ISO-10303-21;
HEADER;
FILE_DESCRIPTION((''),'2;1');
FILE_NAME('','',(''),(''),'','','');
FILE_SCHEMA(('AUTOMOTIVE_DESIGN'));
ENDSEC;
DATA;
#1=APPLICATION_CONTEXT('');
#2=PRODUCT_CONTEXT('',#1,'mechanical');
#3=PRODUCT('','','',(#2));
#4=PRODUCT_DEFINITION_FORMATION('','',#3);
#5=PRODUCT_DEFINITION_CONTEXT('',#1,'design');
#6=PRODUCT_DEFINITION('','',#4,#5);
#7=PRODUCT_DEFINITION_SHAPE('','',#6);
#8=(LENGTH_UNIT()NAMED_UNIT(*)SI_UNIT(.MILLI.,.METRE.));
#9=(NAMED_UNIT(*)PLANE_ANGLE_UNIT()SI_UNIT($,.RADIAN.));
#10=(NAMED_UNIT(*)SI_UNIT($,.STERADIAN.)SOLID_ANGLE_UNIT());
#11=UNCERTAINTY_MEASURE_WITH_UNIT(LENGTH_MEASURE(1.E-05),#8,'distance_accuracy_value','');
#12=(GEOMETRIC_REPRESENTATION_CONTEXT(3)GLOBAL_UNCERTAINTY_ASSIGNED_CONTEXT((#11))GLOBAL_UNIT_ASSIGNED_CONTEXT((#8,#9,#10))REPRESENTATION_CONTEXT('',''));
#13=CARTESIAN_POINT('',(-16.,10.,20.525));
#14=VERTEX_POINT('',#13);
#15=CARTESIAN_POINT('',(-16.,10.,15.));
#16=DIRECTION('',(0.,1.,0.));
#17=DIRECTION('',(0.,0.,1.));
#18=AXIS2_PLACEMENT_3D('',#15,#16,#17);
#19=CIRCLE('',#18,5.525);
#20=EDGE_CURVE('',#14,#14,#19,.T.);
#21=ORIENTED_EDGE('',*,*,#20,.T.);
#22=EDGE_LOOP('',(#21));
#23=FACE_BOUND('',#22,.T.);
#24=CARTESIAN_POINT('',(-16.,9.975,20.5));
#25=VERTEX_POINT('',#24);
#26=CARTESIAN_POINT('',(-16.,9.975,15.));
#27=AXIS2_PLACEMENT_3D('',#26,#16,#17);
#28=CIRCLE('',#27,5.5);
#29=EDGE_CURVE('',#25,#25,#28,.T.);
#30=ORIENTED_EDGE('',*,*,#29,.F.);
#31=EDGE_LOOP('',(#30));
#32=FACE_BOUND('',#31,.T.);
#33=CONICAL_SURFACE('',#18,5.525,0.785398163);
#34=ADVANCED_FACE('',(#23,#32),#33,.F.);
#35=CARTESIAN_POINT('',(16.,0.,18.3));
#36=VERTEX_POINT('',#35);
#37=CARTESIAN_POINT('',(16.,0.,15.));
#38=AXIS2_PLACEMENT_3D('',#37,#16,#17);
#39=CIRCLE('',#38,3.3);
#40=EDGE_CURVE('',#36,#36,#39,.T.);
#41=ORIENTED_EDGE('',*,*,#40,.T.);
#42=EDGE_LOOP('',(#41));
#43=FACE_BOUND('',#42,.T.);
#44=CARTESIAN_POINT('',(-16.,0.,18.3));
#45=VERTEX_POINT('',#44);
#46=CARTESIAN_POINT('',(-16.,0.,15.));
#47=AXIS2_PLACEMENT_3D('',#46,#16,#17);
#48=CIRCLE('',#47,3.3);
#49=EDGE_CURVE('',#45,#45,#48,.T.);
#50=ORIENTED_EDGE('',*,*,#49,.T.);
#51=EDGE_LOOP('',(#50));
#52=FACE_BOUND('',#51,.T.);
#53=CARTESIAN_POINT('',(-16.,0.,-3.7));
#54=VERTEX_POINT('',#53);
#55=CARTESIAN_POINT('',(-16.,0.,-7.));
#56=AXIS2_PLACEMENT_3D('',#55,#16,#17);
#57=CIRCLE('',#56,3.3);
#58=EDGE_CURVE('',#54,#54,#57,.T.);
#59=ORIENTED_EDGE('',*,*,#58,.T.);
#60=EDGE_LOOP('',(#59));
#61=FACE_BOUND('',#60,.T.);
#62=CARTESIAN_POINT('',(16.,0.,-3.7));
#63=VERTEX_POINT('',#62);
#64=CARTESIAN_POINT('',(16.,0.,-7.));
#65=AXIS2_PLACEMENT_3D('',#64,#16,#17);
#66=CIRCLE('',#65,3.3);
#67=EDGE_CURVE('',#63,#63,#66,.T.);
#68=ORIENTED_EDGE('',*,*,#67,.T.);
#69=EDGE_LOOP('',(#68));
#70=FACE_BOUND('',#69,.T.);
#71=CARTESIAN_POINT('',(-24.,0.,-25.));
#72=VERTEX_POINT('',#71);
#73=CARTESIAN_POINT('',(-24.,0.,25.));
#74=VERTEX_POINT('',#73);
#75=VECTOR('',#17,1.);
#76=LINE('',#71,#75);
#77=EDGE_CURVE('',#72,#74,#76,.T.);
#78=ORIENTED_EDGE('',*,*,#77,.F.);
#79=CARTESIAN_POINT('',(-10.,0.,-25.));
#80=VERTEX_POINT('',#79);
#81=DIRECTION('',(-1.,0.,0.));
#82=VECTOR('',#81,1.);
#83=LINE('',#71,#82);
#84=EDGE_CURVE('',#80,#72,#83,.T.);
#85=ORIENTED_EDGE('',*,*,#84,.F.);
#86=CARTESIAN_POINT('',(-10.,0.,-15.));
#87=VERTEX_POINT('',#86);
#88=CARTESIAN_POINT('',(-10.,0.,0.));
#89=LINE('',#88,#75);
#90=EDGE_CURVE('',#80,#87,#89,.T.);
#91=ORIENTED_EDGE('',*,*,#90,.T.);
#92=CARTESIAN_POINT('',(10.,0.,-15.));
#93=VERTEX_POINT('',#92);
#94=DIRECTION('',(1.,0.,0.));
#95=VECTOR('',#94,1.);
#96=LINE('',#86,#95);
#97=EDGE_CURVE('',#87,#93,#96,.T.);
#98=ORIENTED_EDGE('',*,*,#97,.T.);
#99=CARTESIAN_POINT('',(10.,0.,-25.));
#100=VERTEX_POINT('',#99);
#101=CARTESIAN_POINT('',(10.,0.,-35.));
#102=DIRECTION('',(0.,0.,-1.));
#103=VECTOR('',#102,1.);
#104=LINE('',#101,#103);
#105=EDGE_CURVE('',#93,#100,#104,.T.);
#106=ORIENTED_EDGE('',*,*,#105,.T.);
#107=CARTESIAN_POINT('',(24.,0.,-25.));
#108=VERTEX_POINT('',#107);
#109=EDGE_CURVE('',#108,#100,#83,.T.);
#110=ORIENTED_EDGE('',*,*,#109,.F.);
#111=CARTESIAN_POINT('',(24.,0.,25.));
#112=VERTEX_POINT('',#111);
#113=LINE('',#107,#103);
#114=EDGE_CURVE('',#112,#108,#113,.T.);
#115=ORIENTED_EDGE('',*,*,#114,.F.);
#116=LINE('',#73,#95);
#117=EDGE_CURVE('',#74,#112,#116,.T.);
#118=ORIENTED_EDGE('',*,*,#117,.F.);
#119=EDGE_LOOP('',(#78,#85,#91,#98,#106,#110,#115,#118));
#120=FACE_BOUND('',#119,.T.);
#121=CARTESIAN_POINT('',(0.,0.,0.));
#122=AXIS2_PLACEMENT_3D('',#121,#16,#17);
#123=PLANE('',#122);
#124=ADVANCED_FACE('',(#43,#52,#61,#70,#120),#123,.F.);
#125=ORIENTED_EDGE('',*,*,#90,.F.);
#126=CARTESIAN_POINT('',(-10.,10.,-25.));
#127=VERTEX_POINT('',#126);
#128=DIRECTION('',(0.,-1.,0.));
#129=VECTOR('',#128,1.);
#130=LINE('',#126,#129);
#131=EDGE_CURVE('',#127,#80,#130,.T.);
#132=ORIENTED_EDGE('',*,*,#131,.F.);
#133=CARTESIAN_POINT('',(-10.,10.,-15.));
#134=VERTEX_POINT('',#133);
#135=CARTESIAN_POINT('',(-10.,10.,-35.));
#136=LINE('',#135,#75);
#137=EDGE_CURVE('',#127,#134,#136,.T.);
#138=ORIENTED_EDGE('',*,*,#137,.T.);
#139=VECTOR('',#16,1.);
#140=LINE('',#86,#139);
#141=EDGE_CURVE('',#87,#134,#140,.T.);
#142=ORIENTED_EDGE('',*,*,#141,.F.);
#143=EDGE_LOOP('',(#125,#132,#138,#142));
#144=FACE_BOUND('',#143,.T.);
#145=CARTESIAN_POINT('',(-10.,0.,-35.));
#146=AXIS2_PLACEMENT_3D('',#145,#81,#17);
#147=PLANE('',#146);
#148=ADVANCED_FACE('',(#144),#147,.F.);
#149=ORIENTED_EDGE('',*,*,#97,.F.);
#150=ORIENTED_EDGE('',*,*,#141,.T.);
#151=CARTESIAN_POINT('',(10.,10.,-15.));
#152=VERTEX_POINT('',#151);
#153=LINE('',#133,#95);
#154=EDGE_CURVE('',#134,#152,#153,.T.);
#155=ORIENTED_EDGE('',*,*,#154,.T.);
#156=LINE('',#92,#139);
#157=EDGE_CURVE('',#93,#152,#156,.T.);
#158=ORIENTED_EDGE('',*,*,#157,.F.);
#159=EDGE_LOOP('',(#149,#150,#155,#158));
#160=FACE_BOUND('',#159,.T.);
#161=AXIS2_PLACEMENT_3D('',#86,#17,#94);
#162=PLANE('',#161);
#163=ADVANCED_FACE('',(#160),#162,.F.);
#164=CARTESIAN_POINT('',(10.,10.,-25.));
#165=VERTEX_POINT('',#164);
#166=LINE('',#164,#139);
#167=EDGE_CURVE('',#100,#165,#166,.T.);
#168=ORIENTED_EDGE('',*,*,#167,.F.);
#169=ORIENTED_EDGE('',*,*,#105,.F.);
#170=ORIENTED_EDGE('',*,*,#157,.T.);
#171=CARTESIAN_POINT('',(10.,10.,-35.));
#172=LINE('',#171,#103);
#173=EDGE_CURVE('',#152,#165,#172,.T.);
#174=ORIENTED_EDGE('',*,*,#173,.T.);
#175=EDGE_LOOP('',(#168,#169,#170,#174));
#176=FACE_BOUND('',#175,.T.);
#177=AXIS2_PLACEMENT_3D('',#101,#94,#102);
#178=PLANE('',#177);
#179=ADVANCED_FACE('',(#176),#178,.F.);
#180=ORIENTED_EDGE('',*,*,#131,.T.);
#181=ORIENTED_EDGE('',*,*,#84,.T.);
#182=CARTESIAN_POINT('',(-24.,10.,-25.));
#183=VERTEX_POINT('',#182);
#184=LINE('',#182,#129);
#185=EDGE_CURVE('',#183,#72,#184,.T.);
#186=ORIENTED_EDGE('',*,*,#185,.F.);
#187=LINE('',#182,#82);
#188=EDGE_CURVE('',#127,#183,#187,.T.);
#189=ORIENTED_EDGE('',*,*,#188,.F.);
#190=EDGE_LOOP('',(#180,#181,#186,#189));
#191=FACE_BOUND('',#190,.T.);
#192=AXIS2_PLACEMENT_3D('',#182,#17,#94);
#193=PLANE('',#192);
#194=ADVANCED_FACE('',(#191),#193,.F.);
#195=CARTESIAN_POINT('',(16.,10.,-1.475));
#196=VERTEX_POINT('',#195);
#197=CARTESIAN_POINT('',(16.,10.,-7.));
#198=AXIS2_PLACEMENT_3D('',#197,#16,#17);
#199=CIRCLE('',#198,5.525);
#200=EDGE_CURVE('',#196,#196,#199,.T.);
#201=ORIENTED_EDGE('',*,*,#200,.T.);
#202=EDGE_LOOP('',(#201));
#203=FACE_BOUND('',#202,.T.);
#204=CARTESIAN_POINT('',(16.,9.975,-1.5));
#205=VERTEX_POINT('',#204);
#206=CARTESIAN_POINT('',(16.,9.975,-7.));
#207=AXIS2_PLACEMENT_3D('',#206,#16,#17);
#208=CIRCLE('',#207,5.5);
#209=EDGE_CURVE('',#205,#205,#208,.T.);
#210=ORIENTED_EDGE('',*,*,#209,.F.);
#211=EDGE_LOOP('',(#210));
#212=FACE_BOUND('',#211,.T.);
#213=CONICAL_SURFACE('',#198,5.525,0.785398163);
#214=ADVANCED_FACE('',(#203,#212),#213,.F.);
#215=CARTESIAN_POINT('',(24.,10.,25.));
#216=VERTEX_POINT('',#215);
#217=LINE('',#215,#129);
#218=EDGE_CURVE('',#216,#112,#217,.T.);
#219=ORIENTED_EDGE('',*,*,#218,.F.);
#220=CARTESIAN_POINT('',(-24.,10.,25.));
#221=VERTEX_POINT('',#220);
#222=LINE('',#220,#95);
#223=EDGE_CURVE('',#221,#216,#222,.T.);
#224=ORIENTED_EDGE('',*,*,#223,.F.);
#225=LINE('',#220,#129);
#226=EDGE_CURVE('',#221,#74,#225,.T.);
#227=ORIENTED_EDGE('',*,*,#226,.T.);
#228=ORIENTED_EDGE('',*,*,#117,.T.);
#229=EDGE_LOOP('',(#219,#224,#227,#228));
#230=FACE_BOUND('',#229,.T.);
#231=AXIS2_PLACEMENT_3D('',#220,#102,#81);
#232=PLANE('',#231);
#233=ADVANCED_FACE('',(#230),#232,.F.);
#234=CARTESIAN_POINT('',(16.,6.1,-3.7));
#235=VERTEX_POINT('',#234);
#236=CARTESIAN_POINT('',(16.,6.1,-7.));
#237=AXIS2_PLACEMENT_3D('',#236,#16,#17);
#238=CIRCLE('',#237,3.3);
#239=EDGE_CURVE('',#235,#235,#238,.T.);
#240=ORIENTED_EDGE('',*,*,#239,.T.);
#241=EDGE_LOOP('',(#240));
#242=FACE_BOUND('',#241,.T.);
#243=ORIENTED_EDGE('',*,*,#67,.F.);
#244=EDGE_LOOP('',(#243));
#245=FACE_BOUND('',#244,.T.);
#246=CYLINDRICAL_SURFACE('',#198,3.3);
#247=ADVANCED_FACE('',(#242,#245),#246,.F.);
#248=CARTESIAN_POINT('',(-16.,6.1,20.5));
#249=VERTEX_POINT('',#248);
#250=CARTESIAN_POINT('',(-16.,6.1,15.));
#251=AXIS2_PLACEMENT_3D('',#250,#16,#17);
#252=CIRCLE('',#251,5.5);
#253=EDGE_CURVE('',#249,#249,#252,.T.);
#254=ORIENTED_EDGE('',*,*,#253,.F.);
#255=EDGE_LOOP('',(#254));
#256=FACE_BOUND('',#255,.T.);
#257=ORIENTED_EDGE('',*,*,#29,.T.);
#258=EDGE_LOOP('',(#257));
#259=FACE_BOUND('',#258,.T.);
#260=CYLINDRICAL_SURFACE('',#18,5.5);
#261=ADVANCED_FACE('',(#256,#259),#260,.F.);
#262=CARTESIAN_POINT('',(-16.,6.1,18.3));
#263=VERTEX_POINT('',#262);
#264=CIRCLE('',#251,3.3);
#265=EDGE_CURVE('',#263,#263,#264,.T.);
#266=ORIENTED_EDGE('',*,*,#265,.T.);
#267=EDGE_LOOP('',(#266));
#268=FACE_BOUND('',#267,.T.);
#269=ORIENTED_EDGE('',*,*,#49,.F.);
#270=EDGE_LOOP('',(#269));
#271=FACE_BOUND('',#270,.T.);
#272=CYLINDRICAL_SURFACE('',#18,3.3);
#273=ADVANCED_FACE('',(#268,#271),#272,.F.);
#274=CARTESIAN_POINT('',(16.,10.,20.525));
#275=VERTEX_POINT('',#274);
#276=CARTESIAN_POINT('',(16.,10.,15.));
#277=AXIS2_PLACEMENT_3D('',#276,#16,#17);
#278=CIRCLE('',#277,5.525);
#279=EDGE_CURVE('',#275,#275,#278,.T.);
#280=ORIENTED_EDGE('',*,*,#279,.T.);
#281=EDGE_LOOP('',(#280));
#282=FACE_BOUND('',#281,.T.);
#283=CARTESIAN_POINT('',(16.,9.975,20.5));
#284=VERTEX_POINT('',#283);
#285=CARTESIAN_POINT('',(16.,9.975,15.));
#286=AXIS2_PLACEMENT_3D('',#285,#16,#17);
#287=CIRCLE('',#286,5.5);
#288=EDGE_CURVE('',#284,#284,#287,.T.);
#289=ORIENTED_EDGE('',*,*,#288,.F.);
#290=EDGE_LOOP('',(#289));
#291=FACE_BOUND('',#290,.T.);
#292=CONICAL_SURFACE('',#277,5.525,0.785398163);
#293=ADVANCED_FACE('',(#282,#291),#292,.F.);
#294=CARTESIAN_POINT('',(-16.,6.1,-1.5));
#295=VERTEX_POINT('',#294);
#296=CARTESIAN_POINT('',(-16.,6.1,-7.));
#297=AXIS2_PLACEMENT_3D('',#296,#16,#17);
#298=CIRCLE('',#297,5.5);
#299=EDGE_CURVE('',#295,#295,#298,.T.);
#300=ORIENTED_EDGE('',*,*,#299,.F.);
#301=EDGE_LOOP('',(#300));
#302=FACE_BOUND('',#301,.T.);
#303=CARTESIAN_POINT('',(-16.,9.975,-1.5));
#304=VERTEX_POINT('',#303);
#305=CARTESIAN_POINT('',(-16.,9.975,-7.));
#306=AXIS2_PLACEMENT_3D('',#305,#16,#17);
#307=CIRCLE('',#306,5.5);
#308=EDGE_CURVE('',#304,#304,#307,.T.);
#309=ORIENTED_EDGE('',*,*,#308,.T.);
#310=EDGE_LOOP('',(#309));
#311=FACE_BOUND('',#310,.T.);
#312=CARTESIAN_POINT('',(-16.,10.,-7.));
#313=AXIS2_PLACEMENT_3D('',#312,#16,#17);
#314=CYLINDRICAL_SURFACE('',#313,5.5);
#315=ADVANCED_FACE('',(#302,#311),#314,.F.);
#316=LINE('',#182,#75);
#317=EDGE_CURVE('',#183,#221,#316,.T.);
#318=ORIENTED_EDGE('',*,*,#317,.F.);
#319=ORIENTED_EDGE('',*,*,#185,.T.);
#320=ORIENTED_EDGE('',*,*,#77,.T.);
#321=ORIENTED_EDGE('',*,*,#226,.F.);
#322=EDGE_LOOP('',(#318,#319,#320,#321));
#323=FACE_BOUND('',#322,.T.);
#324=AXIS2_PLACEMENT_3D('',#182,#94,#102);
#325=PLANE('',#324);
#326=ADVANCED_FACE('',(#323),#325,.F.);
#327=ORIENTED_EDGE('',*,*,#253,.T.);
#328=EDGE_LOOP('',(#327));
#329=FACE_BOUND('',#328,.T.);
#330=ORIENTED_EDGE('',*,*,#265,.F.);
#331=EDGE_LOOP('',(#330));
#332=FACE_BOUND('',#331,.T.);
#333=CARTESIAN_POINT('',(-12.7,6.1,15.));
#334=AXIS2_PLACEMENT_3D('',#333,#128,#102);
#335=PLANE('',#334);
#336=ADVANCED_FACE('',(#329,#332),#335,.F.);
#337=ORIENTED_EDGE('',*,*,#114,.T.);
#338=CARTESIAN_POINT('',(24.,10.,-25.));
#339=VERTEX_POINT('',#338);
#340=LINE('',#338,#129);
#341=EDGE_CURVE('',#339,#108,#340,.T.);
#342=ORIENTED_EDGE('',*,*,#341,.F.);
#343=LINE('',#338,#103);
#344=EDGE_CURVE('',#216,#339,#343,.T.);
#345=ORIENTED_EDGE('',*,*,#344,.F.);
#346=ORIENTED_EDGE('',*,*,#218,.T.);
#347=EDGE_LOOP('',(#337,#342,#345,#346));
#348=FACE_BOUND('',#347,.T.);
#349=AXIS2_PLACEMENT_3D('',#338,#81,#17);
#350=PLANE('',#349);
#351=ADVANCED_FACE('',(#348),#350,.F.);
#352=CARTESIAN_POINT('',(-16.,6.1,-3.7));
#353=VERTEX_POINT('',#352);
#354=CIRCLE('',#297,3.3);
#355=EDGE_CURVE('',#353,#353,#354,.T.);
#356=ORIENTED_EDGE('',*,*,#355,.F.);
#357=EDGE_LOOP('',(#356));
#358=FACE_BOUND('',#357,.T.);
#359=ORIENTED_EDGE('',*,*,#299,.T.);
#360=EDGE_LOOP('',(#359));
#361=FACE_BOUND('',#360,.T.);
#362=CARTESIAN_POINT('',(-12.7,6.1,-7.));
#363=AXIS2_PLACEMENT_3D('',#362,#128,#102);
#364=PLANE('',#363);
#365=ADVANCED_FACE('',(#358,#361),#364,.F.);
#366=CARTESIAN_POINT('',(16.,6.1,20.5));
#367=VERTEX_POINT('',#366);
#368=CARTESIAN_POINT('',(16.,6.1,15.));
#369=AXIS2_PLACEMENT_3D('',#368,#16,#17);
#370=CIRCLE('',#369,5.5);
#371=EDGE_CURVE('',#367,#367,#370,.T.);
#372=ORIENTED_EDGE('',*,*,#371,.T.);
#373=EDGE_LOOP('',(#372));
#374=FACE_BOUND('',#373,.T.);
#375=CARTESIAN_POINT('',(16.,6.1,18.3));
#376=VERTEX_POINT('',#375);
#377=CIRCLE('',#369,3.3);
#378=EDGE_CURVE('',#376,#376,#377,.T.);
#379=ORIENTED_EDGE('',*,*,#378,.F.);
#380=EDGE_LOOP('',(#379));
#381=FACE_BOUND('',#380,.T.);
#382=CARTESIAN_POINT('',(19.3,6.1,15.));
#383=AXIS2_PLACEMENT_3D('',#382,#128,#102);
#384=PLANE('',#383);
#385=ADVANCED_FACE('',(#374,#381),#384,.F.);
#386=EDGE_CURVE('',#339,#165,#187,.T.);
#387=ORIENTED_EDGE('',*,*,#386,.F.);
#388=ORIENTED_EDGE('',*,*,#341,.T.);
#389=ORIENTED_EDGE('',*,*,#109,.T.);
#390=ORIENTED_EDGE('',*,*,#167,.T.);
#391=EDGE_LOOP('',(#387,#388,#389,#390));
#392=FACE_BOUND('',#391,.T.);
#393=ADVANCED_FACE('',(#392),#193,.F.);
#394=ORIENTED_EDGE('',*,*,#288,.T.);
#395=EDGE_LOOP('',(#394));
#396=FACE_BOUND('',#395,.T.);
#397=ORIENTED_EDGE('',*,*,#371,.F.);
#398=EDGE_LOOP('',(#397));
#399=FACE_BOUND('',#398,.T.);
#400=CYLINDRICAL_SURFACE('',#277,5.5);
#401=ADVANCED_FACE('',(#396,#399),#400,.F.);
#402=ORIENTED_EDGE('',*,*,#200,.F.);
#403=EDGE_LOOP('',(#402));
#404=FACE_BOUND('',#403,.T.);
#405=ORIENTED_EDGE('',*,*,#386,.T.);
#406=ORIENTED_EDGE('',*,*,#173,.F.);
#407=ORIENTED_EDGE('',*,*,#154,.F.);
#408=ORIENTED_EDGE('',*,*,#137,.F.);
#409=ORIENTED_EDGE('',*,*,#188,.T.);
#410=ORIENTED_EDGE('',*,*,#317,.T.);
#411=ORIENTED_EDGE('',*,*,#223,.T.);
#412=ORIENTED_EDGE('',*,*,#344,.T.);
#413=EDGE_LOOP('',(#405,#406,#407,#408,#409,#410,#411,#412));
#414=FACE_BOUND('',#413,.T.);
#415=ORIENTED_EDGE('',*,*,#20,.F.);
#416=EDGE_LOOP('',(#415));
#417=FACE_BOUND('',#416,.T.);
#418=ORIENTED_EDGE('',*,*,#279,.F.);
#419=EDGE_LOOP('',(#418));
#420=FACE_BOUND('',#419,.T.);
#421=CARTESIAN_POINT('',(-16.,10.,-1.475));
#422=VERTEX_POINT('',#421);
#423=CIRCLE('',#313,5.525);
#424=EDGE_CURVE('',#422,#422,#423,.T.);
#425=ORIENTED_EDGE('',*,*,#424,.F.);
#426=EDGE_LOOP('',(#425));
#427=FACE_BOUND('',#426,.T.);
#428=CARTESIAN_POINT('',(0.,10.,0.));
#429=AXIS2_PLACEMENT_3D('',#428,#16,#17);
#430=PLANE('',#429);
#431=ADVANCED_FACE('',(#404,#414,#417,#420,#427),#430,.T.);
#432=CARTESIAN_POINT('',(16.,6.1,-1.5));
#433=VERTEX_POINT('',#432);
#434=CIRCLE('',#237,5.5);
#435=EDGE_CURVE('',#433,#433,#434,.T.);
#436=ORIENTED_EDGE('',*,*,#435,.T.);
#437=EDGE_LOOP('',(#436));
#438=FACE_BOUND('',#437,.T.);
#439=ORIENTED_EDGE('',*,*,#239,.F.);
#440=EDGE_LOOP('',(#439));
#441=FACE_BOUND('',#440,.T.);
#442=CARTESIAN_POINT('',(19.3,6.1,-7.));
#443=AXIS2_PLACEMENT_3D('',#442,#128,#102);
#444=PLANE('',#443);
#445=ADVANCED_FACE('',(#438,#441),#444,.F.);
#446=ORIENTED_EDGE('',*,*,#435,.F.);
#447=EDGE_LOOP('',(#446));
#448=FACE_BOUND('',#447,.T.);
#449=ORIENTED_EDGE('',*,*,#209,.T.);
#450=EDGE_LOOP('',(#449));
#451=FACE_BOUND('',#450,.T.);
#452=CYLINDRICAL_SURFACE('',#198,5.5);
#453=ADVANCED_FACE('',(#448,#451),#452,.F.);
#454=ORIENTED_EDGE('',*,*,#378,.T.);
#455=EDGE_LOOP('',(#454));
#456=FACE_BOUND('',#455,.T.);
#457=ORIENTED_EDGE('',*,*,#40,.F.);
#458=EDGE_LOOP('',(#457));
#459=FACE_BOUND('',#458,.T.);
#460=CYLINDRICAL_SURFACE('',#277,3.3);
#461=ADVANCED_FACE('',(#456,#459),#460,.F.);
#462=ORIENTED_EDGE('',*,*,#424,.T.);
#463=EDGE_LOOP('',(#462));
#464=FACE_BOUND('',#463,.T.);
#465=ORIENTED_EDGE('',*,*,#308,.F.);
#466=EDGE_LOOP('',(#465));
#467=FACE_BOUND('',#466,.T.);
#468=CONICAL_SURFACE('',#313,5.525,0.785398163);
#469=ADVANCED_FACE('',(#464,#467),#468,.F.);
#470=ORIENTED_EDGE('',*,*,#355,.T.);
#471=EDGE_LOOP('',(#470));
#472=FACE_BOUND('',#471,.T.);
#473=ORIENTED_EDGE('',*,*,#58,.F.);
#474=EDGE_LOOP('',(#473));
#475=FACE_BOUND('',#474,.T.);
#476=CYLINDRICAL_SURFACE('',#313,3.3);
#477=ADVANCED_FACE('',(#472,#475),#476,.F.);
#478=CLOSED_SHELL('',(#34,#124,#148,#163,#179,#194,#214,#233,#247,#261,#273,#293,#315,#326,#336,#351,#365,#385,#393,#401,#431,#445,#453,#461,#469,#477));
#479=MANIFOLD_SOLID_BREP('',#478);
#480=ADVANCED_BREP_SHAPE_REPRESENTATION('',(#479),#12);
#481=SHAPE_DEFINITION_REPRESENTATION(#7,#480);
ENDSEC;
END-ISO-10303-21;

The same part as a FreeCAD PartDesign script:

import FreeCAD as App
import Part
import Sketcher
Q = App.Units.Quantity


def add_polygon(sketch, points):
    """Adds a closed chain of lines whose ends are joined by coincident constraints."""
    first, n = sketch.GeometryCount, len(points)
    for a, b in zip(points, points[1:] + points[:1]):
        sketch.addGeometry(Part.LineSegment(App.Vector(*a, 0), App.Vector(*b, 0)), False)
    for i in range(n):
        sketch.addConstraint(Sketcher.Constraint("Coincident", first + i, 2, first + (i + 1) % n, 1))

doc = App.newDocument("Part")
body = doc.addObject("PartDesign::Body", "Body")

sketch1 = body.newObject("Sketcher::SketchObject", "Sketch")
sketch1.AttachmentSupport = (doc.getObject("XZ_Plane"), [""])
sketch1.MapMode = "FlatFace"
add_polygon(sketch1, [(-24, -25), (-24, 25), (24, 25), (24, -25)])
sketch1.addConstraint([
    Sketcher.Constraint("Vertical", 0),
    Sketcher.Constraint("Horizontal", 1),
    Sketcher.Constraint("Vertical", 2),
    Sketcher.Constraint("Horizontal", 3),
    Sketcher.Constraint("Symmetric", 0, 2, 2, 2, -1, 1),
    Sketcher.Constraint("DistanceX", 1, 1, 1, 2, Q("48 mm")),
    Sketcher.Constraint("DistanceY", 0, 1, 0, 2, Q("50 mm")),
])
pad1 = body.newObject("PartDesign::Pad", "Pad")
pad1.Profile = sketch1
pad1.Length = 10
pad1.Reversed = True

sketch2 = body.newObject("Sketcher::SketchObject", "Sketch001")
sketch2.AttachmentSupport = (doc.getObject("XZ_Plane"), [""])
sketch2.MapMode = "FlatFace"
sketch2.AttachmentOffset = App.Placement(App.Vector(0, 0, -10), App.Rotation())
add_polygon(sketch2, [(-10, -35), (-10, -15), (10, -15), (10, -35)])
sketch2.addConstraint([
    Sketcher.Constraint("Vertical", 0),
    Sketcher.Constraint("Horizontal", 1),
    Sketcher.Constraint("Vertical", 2),
    Sketcher.Constraint("Horizontal", 3),
    Sketcher.Constraint("Equal", 3, 0),
    Sketcher.Constraint("DistanceX", 1, 1, 1, 2, Q("20 mm")),
    Sketcher.Constraint("DistanceX", 0, 2, -1, 1, Q("10 mm")),
    Sketcher.Constraint("DistanceY", 0, 2, -1, 1, Q("15 mm")),
])
pocket1 = body.newObject("PartDesign::Pocket", "Pocket")
pocket1.Profile = sketch2
pocket1.Length = 10
pocket1.Reversed = True

sketch3 = body.newObject("Sketcher::SketchObject", "Sketch002")
sketch3.AttachmentSupport = (doc.getObject("YZ_Plane"), [""])
sketch3.MapMode = "FlatFace"
sketch3.AttachmentOffset = App.Placement(App.Vector(0, 0, -16), App.Rotation())
add_polygon(sketch3, [(-1.98284, -7), (10, -7), (10, -1.475), (9.975, -1.5), (6.1, -1.5), (6.1, -3.7), (0, -3.7)])
sketch3.addGeometry(Part.LineSegment(App.Vector(10, -7, 0), App.Vector(-1.98284, -7, 0)), True)
sketch3.addConstraint([
    Sketcher.Constraint("Horizontal", 0),
    Sketcher.Constraint("Vertical", 1),
    Sketcher.Constraint("Horizontal", 3),
    Sketcher.Constraint("Vertical", 4),
    Sketcher.Constraint("Horizontal", 5),
    Sketcher.Constraint("Horizontal", 7),
    Sketcher.Constraint("Coincident", 7, 1, 0, 2),
    Sketcher.Constraint("PointOnObject", 5, 2, -2),
    Sketcher.Constraint("Equal", 0, 7),
    Sketcher.Constraint("Angle", 2, Q("-135 deg")),
    Sketcher.Constraint("Angle", 6, Q("-121 deg")),
    Sketcher.Constraint("DistanceX", 5, 2, 5, 1, Q("6.1 mm")),
    Sketcher.Constraint("DistanceY", 4, 2, 4, 1, Q("2.2 mm")),
    Sketcher.Constraint("DistanceX", -1, 1, 0, 2, Q("10 mm")),
    Sketcher.Constraint("DistanceY", 0, 2, -1, 1, Q("7 mm")),
    Sketcher.Constraint("DistanceY", 2, 2, -1, 1, Q("1.5 mm")),
    Sketcher.Constraint("DistanceX", 3, 2, 3, 1, Q("3.875 mm")),
])
groove = body.newObject("PartDesign::Groove", "Groove")
groove.Profile = sketch3
groove.ReferenceAxis = (sketch3, ["Axis0"])
groove.Angle = 360
doc.recompute()

linearpattern = body.newObject("PartDesign::LinearPattern", "LinearPattern")
linearpattern.Originals = [groove]
linearpattern.Direction = (doc.getObject("Z_Axis"), [""])
linearpattern.Mode = "offset"
linearpattern.Offset = 22
linearpattern.Occurrences = 2
body.Tip = linearpattern
doc.recompute()

datumline = body.newObject("PartDesign::Line", "DatumLine")
datumline.Placement = App.Placement(App.Vector(0, 0, 0), App.Rotation(App.Vector(0, 0, 1), App.Vector(0.824041924, 0, 0.566528823)))
linearpattern2 = body.newObject("PartDesign::LinearPattern", "LinearPattern001")
linearpattern2.Originals = [groove]
linearpattern2.Direction = (datumline, [""])
linearpattern2.Mode = "offset"
linearpattern2.Offset = 38.832976
linearpattern2.Occurrences = 2
body.Tip = linearpattern2
doc.recompute()

linearpattern3 = body.newObject("PartDesign::LinearPattern", "LinearPattern002")
linearpattern3.Originals = [groove]
linearpattern3.Direction = (doc.getObject("X_Axis"), [""])
linearpattern3.Mode = "offset"
linearpattern3.Offset = 32
linearpattern3.Occurrences = 2
body.Tip = linearpattern3

doc.recompute()
